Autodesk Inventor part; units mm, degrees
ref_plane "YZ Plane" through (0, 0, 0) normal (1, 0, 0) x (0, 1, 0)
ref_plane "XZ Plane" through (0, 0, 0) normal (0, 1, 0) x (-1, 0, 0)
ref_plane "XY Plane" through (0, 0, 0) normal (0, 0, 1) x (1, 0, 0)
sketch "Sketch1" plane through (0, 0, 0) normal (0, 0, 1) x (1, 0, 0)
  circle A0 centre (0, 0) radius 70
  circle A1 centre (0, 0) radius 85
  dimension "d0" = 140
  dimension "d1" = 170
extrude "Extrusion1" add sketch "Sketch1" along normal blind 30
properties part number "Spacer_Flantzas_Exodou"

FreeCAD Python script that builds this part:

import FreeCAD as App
import Part
import Sketcher
from FreeCAD import Vector
Q = App.Units.Quantity

doc = App.newDocument("Part")
body = doc.addObject("PartDesign::Body", "Body")

# Sketch on XY plane
sketch1 = body.newObject("Sketcher::SketchObject", "Sketch")
sketch1.AttachmentSupport = (doc.getObject("XY_Plane"), [""])
sketch1.MapMode = "FlatFace"
sketch1.addGeometry(Part.Circle(Vector(0, 0, 0), Vector(0, 0, 1), 85), False)
sketch1.addGeometry(Part.Circle(Vector(0, 0, 0), Vector(0, 0, 1), 70), False)
sketch1.addConstraint(Sketcher.Constraint("Coincident", 0, 3, -1, 1))
sketch1.addConstraint(Sketcher.Constraint("Coincident", 1, 3, -1, 1))
sketch1.addConstraint(Sketcher.Constraint("Diameter", 0, Q("170 mm")))
sketch1.addConstraint(Sketcher.Constraint("Diameter", 1, Q("140 mm")))
pad1 = body.newObject("PartDesign::Pad", "Pad")
pad1.Profile = sketch1
pad1.Length = 30

doc.recompute()
